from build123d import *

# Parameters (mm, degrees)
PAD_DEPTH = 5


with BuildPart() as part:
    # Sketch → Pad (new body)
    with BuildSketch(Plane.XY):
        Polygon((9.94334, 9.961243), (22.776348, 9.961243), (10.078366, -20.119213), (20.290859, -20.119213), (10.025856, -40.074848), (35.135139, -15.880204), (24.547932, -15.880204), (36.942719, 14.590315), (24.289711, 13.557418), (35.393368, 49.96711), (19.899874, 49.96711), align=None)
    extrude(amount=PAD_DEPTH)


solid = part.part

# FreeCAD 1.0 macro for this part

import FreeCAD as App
import Part
import Sketcher

V = App.Vector

doc = App.newDocument("Part")
body = doc.addObject("PartDesign::Body", "Body")

# Sketch on XY plane
sketch1 = body.newObject("Sketcher::SketchObject", "Sketch")
sketch1.AttachmentSupport = (doc.getObject("XY_Plane"), [""])
sketch1.MapMode = "FlatFace"
sketch1.addGeometry(Part.LineSegment(V(9.94334, 9.961243, 0), V(22.776348, 9.961243, 0)), False)
sketch1.addGeometry(Part.LineSegment(V(22.776348, 9.961243, 0), V(10.078366, -20.119213, 0)), False)
sketch1.addGeometry(Part.LineSegment(V(10.078366, -20.119213, 0), V(20.290859, -20.119213, 0)), False)
sketch1.addGeometry(Part.LineSegment(V(20.290859, -20.119213, 0), V(10.025856, -40.074848, 0)), False)
sketch1.addGeometry(Part.LineSegment(V(10.025856, -40.074848, 0), V(35.135139, -15.880204, 0)), False)
sketch1.addGeometry(Part.LineSegment(V(35.135139, -15.880204, 0), V(24.547932, -15.880204, 0)), False)
sketch1.addGeometry(Part.LineSegment(V(24.547932, -15.880204, 0), V(36.942719, 14.590315, 0)), False)
sketch1.addGeometry(Part.LineSegment(V(36.942719, 14.590315, 0), V(24.289711, 13.557418, 0)), False)
sketch1.addGeometry(Part.LineSegment(V(24.289711, 13.557418, 0), V(35.393368, 49.96711, 0)), False)
sketch1.addGeometry(Part.LineSegment(V(35.393368, 49.96711, 0), V(19.899874, 49.96711, 0)), False)
sketch1.addGeometry(Part.LineSegment(V(19.899874, 49.96711, 0), V(9.94334, 9.961243, 0)), False)
sketch1.addConstraint(Sketcher.Constraint("Coincident", 0, 2, 1, 1))
sketch1.addConstraint(Sketcher.Constraint("Coincident", 1, 2, 2, 1))
sketch1.addConstraint(Sketcher.Constraint("Coincident", 2, 2, 3, 1))
sketch1.addConstraint(Sketcher.Constraint("Coincident", 3, 2, 4, 1))
sketch1.addConstraint(Sketcher.Constraint("Coincident", 4, 2, 5, 1))
sketch1.addConstraint(Sketcher.Constraint("Coincident", 5, 2, 6, 1))
sketch1.addConstraint(Sketcher.Constraint("Coincident", 6, 2, 7, 1))
sketch1.addConstraint(Sketcher.Constraint("Coincident", 7, 2, 8, 1))
sketch1.addConstraint(Sketcher.Constraint("Coincident", 8, 2, 9, 1))
sketch1.addConstraint(Sketcher.Constraint("Coincident", 9, 2, 10, 1))
sketch1.addConstraint(Sketcher.Constraint("Coincident", 10, 2, 0, 1))
sketch1.addConstraint(Sketcher.Constraint("Horizontal", 0))
sketch1.addConstraint(Sketcher.Constraint("Horizontal", 2))
sketch1.addConstraint(Sketcher.Constraint("Horizontal", 5))
sketch1.addConstraint(Sketcher.Constraint("Horizontal", 9))
sketch1.addConstraint(Sketcher.Constraint("Distance", 3, 22.440982))
sketch1.addConstraint(Sketcher.Constraint("Distance", 4, 34.86914))
sketch1.addConstraint(Sketcher.Constraint("Distance", 10, 41.226229))
sketch1.addConstraint(Sketcher.Constraint("DistanceX", 0, 1, 0, 2, 12.833008))
sketch1.addConstraint(Sketcher.Constraint("DistanceX", 2, 1, 2, 2, 10.212493))
sketch1.addConstraint(Sketcher.Constraint("DistanceX", 5, 2, 5, 1, 10.587207))
sketch1.addConstraint(Sketcher.Constraint("DistanceX", 9, 2, 9, 1, 15.493494))
sketch1.addConstraint(Sketcher.Constraint("DistanceX", -1, 1, 2, 2, 20.290859))
sketch1.addConstraint(Sketcher.Constraint("DistanceY", 3, 2, -1, 1, 40.074848))
sketch1.addConstraint(Sketcher.Constraint("DistanceX", -1, 1, 4, 2, 35.135139))
sketch1.addConstraint(Sketcher.Constraint("DistanceX", -1, 1, 6, 2, 36.942719))
sketch1.addConstraint(Sketcher.Constraint("DistanceX", -1, 1, 7, 2, 24.289711))
sketch1.addConstraint(Sketcher.Constraint("DistanceX", -1, 1, 8, 2, 35.393368))
sketch1.addConstraint(Sketcher.Constraint("DistanceY", -1, 1, 8, 2, 49.96711))
sketch1.addConstraint(Sketcher.Constraint("DistanceX", -1, 1, 10, 2, 9.94334))
sketch1.addConstraint(Sketcher.Constraint("DistanceX", 3, 2, 1, 2, 0.05251))
sketch1.addConstraint(Sketcher.Constraint("DistanceY", 4, 2, 6, 2, 30.470519))
sketch1.addConstraint(Sketcher.Constraint("DistanceY", 2, 2, 7, 2, 33.676631))
pad1 = body.newObject("PartDesign::Pad", "Pad")
pad1.Profile = sketch1
pad1.Length = 5

doc.recompute()
